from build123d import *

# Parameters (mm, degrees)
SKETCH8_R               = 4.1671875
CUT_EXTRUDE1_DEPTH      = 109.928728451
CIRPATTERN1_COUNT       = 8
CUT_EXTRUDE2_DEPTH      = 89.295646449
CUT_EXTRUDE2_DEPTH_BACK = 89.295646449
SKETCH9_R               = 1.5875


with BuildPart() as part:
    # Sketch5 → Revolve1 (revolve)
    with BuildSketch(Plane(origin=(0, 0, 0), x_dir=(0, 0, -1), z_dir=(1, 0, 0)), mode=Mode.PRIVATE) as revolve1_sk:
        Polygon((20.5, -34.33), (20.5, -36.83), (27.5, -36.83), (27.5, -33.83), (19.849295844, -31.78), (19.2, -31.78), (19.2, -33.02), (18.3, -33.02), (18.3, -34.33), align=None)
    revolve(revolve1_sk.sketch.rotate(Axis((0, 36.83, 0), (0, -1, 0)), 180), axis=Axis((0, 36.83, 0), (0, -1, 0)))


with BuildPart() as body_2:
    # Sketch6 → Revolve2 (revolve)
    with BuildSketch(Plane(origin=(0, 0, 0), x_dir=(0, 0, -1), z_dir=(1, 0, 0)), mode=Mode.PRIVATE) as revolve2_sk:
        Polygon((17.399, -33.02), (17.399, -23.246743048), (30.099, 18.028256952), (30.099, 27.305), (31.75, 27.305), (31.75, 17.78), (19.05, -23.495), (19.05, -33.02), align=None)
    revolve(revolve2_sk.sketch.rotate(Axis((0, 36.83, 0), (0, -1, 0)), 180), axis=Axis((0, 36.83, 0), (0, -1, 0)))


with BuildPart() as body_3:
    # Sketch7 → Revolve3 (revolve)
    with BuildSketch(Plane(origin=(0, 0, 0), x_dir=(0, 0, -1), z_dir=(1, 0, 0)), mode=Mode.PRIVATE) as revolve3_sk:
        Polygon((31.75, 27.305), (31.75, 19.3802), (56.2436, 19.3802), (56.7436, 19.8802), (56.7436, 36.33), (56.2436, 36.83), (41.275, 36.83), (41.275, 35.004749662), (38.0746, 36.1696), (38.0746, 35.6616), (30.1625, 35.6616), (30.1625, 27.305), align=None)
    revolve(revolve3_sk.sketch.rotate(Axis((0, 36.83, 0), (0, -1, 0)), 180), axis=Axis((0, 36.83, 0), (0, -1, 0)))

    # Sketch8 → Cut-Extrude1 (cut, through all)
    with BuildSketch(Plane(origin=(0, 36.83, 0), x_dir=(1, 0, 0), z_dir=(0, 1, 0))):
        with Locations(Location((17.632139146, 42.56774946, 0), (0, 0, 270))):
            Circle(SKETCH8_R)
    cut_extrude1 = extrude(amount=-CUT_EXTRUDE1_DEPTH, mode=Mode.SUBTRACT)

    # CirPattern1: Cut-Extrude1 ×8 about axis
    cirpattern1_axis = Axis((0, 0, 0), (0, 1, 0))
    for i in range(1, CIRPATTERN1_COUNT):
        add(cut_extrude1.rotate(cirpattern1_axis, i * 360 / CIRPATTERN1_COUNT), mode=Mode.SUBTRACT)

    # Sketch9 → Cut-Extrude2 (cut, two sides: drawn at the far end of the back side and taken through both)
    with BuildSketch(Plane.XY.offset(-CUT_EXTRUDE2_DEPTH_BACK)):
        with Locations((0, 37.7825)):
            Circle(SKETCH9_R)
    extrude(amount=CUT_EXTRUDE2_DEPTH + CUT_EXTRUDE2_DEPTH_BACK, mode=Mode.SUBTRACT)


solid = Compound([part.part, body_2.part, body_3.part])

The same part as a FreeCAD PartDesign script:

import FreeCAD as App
import Part
import Sketcher
Q = App.Units.Quantity

doc = App.newDocument("Part")
params = doc.addObject("Spreadsheet::Sheet", "Params")
for row, (alias, value) in enumerate([
    ("revolution_angle", "360 deg"),
    ("sketch2_width", "0.375 in"),
    ("sketch2_height", "0.065 in"),
    ("revolution2_angle", "360 deg"),
    ("sketch3_width", "0.02 in"),
    ("sketch3_width2", "0.312 in"),
    ("sketch3_width3", "0.329 in"),
    ("sketch3_height", "0.0625 in"),
    ("revolution3_angle", "360 deg"),
    ("sketch4_diameter", "0.328125 in"),
    ("sketch5_diameter", "0.125 in"),
], start=1):
    params.set(f"A{row}", alias)
    params.set(f"B{row}", "=" + value)
    params.setAlias(f"B{row}", alias)

body = doc.addObject("PartDesign::Body", "Body")

# Sketch on YZ plane
sketch1 = body.newObject("Sketcher::SketchObject", "Sketch")
sketch1.AttachmentSupport = (doc.getObject("YZ_Plane"), [""])
sketch1.MapMode = "FlatFace"
sketch1.addGeometry([
    Part.LineSegment(App.Vector(-34.3, -20.5, 0), App.Vector(-36.8, -20.5, 0)),  # 0
    Part.LineSegment(App.Vector(-36.8, -20.5, 0), App.Vector(-36.8, -27.5, 0)),  # 1
    Part.LineSegment(App.Vector(-36.8, -27.5, 0), App.Vector(-33.8, -27.5, 0)),  # 2
    Part.LineSegment(App.Vector(-33.8, -27.5, 0), App.Vector(-31.8, -19.8, 0)),  # 3
    Part.LineSegment(App.Vector(-31.8, -19.8, 0), App.Vector(-31.8, -19.2, 0)),  # 4
    Part.LineSegment(App.Vector(-31.8, -19.2, 0), App.Vector(-33, -19.2, 0)),  # 5
    Part.LineSegment(App.Vector(-33, -19.2, 0), App.Vector(-33, -18.3, 0)),  # 6
    Part.LineSegment(App.Vector(-33, -18.3, 0), App.Vector(-34.3, -18.3, 0)),  # 7
    Part.LineSegment(App.Vector(-34.3, -18.3, 0), App.Vector(-34.3, -20.5, 0)),  # 8
], False)
sketch1.addConstraint([
    Sketcher.Constraint("Coincident", 0, 2, 1, 1),
    Sketcher.Constraint("Coincident", 1, 2, 2, 1),
    Sketcher.Constraint("Coincident", 2, 2, 3, 1),
    Sketcher.Constraint("Coincident", 3, 2, 4, 1),
    Sketcher.Constraint("Coincident", 4, 2, 5, 1),
    Sketcher.Constraint("Coincident", 5, 2, 6, 1),
    Sketcher.Constraint("Coincident", 6, 2, 7, 1),
    Sketcher.Constraint("Coincident", 7, 2, 8, 1),
    Sketcher.Constraint("Coincident", 8, 2, 0, 1),
    Sketcher.Constraint("Horizontal", 0),
    Sketcher.Constraint("Vertical", 1),
    Sketcher.Constraint("Horizontal", 2),
    Sketcher.Constraint("Vertical", 4),
    Sketcher.Constraint("Horizontal", 5),
    Sketcher.Constraint("Vertical", 6),
    Sketcher.Constraint("Horizontal", 7),
    Sketcher.Constraint("Vertical", 8),
    Sketcher.Constraint("Angle", 3, Q("75 deg")),
    Sketcher.Constraint("DistanceX", 5, 2, -1, 1, Q("1.3 in")),
    Sketcher.Constraint("DistanceX", 0, 2, -1, 1, Q("1.45 in")),
    Sketcher.Constraint("DistanceX", 0, 2, 0, 1, Q("2.5 mm")),
    Sketcher.Constraint("DistanceX", 2, 1, 2, 2, Q("3 mm")),
    Sketcher.Constraint("DistanceX", 5, 2, 5, 1, Q("1.24 mm")),
    Sketcher.Constraint("DistanceY", 1, 2, 1, 1, Q("7 mm")),
    Sketcher.Constraint("DistanceY", 6, 1, 6, 2, Q("0.9 mm")),
    Sketcher.Constraint("DistanceY", 8, 2, 8, 1, Q("2.2 mm")),
    Sketcher.Constraint("DistanceY", 0, 2, -1, 1, Q("20.5 mm")),
])
revolution = body.newObject("PartDesign::Revolution", "Revolution")
revolution.Profile = sketch1
revolution.ReferenceAxis = (sketch1, ["H_Axis"])
revolution.setExpression("Angle", "Params.revolution_angle")
body2 = doc.addObject("PartDesign::Body", "Body001")

# Sketch on YZ plane
sketch2 = body2.newObject("Sketcher::SketchObject", "Sketch001")
sketch2.AttachmentSupport = (doc.getObject("YZ_Plane001"), [""])
sketch2.MapMode = "FlatFace"
sketch2.addGeometry([
    Part.LineSegment(App.Vector(-23.2, -17.4, 0), App.Vector(-33, -17.4, 0)),  # 0
    Part.LineSegment(App.Vector(-33, -17.4, 0), App.Vector(-33, -19.1, 0)),  # 1
    Part.LineSegment(App.Vector(-33, -19.1, 0), App.Vector(-23.5, -19.1, 0)),  # 2
    Part.LineSegment(App.Vector(-23.5, -19.1, 0), App.Vector(17.8, -31.8, 0)),  # 3
    Part.LineSegment(App.Vector(17.8, -31.8, 0), App.Vector(27.3, -31.8, 0)),  # 4
    Part.LineSegment(App.Vector(27.3, -31.8, 0), App.Vector(27.3, -30.1, 0)),  # 5
    Part.LineSegment(App.Vector(27.3, -30.1, 0), App.Vector(18, -30.1, 0)),  # 6
    Part.LineSegment(App.Vector(18, -30.1, 0), App.Vector(-23.2, -17.4, 0)),  # 7
], False)
sketch2.addConstraint([
    Sketcher.Constraint("Coincident", 0, 2, 1, 1),
    Sketcher.Constraint("Coincident", 1, 2, 2, 1),
    Sketcher.Constraint("Coincident", 2, 2, 3, 1),
    Sketcher.Constraint("Coincident", 3, 2, 4, 1),
    Sketcher.Constraint("Coincident", 4, 2, 5, 1),
    Sketcher.Constraint("Coincident", 5, 2, 6, 1),
    Sketcher.Constraint("Coincident", 6, 2, 7, 1),
    Sketcher.Constraint("Coincident", 7, 2, 0, 1),
    Sketcher.Constraint("Horizontal", 0),
    Sketcher.Constraint("Vertical", 1),
    Sketcher.Constraint("Horizontal", 2),
    Sketcher.Constraint("Horizontal", 4),
    Sketcher.Constraint("Vertical", 5),
    Sketcher.Constraint("Horizontal", 6),
    Sketcher.Constraint("Parallel", 3, 7),
    Sketcher.Constraint("Equal", 2, 4),
    Sketcher.Constraint("Equal", 1, 5),
    Sketcher.Constraint("DistanceX", 1, 2, 3, 2, Q("2 in")),
    Sketcher.Constraint("DistanceX", 0, 2, -1, 1, Q("1.3 in")),
    Sketcher.Constraint("DistanceY", 3, 2, 2, 2, Q("0.5 in")),
    Sketcher.Constraint("DistanceX", 2, 1, 2, 2, Q("0.375 in")),
    Sketcher.Constraint("DistanceY", 1, 2, 1, 1, Q("0.065 in")),
    Sketcher.Constraint("DistanceY", 1, 2, -1, 1, Q("0.75 in")),
    Sketcher.Constraint("DistanceX", 0, 2, 0, 1, Q("9.773257 mm")),
])
sketch2.setExpression("Constraints[20]", "Params.sketch2_width")
sketch2.setExpression("Constraints[21]", "Params.sketch2_height")
revolution2 = body2.newObject("PartDesign::Revolution", "Revolution001")
revolution2.Profile = sketch2
revolution2.ReferenceAxis = (sketch2, ["H_Axis"])
revolution2.setExpression("Angle", "Params.revolution2_angle")
body3 = doc.addObject("PartDesign::Body", "Body002")

# Sketch on YZ plane
sketch3 = body3.newObject("Sketcher::SketchObject", "Sketch002")
sketch3.AttachmentSupport = (doc.getObject("YZ_Plane002"), [""])
sketch3.MapMode = "FlatFace"
sketch3.addGeometry([
    Part.LineSegment(App.Vector(27.3, -31.8, 0), App.Vector(19.4, -31.8, 0)),  # 0
    Part.LineSegment(App.Vector(19.4, -31.8, 0), App.Vector(19.4, -56.2, 0)),  # 1
    Part.LineSegment(App.Vector(19.4, -56.2, 0), App.Vector(19.9, -56.7, 0)),  # 2
    Part.LineSegment(App.Vector(19.9, -56.7, 0), App.Vector(36.3, -56.7, 0)),  # 3
    Part.LineSegment(App.Vector(36.3, -56.7, 0), App.Vector(36.8, -56.2, 0)),  # 4
    Part.LineSegment(App.Vector(36.8, -56.2, 0), App.Vector(36.8, -41.3, 0)),  # 5
    Part.LineSegment(App.Vector(36.8, -41.3, 0), App.Vector(35, -41.3, 0)),  # 6
    Part.LineSegment(App.Vector(35, -41.3, 0), App.Vector(36.2, -38.1, 0)),  # 7
    Part.LineSegment(App.Vector(36.2, -38.1, 0), App.Vector(35.7, -38.1, 0)),  # 8
    Part.LineSegment(App.Vector(35.7, -38.1, 0), App.Vector(35.7, -30.2, 0)),  # 9
    Part.LineSegment(App.Vector(35.7, -30.2, 0), App.Vector(27.3, -30.2, 0)),  # 10
    Part.LineSegment(App.Vector(27.3, -30.2, 0), App.Vector(27.3, -31.8, 0)),  # 11
], False)
sketch3.addConstraint([
    Sketcher.Constraint("Coincident", 0, 2, 1, 1),
    Sketcher.Constraint("Coincident", 1, 2, 2, 1),
    Sketcher.Constraint("Coincident", 2, 2, 3, 1),
    Sketcher.Constraint("Coincident", 3, 2, 4, 1),
    Sketcher.Constraint("Coincident", 4, 2, 5, 1),
    Sketcher.Constraint("Coincident", 5, 2, 6, 1),
    Sketcher.Constraint("Coincident", 6, 2, 7, 1),
    Sketcher.Constraint("Coincident", 7, 2, 8, 1),
    Sketcher.Constraint("Coincident", 8, 2, 9, 1),
    Sketcher.Constraint("Coincident", 9, 2, 10, 1),
    Sketcher.Constraint("Coincident", 10, 2, 11, 1),
    Sketcher.Constraint("Coincident", 11, 2, 0, 1),
    Sketcher.Constraint("Horizontal", 0),
    Sketcher.Constraint("Vertical", 1),
    Sketcher.Constraint("Horizontal", 3),
    Sketcher.Constraint("Vertical", 5),
    Sketcher.Constraint("Horizontal", 6),
    Sketcher.Constraint("Horizontal", 8),
    Sketcher.Constraint("Vertical", 9),
    Sketcher.Constraint("Horizontal", 10),
    Sketcher.Constraint("Vertical", 11),
    Sketcher.Constraint("Perpendicular", 2, 4),
    Sketcher.Constraint("Horizontal", 1, 2, 4, 2),
    Sketcher.Constraint("Equal", 2, 4),
    Sketcher.Constraint("Angle", 7, Q("70 deg")),
    Sketcher.Constraint("DistanceX", 8, 2, 8, 1, Q("0.02 in")),
    Sketcher.Constraint("DistanceX", 0, 2, 0, 1, Q("0.312 in")),
    Sketcher.Constraint("DistanceX", 10, 2, 10, 1, Q("0.329 in")),
    Sketcher.Constraint("DistanceY", 11, 2, 11, 1, Q("0.0625 in")),
    Sketcher.Constraint("DistanceY", 0, 2, -1, 1, Q("1.25 in")),
    Sketcher.Constraint("DistanceX", -1, 1, 4, 2, Q("1.45 in")),
    Sketcher.Constraint("DistanceY", 9, 1, 9, 2, Q("0.3115 in")),
    Sketcher.Constraint("DistanceX", -1, 1, 0, 2, Q("0.763 in")),
    Sketcher.Constraint("DistanceY", 2, 2, -1, 1, Q("2.234 in")),
    Sketcher.Constraint("DistanceY", 5, 2, -1, 1, Q("1.625 in")),
    Sketcher.Constraint("DistanceX", 3, 1, 3, 2, Q("16.4498 mm")),
])
sketch3.setExpression("Constraints[25]", "Params.sketch3_width")
sketch3.setExpression("Constraints[26]", "Params.sketch3_width2")
sketch3.setExpression("Constraints[27]", "Params.sketch3_width3")
sketch3.setExpression("Constraints[28]", "Params.sketch3_height")
revolution3 = body3.newObject("PartDesign::Revolution", "Revolution002")
revolution3.Profile = sketch3
revolution3.ReferenceAxis = (sketch3, ["H_Axis"])
revolution3.setExpression("Angle", "Params.revolution3_angle")

# Sketch on XZ plane
sketch4 = body3.newObject("Sketcher::SketchObject", "Sketch003")
sketch4.AttachmentSupport = (doc.getObject("XZ_Plane002"), [""])
sketch4.MapMode = "FlatFace"
sketch4.AttachmentOffset = App.Placement(App.Vector(0, 0, -1.45 * 25.4), App.Rotation())
sketch4.addGeometry(Part.Circle(App.Vector(17.6, -42.6, 0), App.Vector(0, 0, 1), 4.2), False)
sketch4.addConstraint([
    Sketcher.Constraint("Diameter", 0, Q("0.328125 in")),
    Sketcher.Constraint("DistanceX", -1, 1, 0, 3, Q("17.632139 mm")),
    Sketcher.Constraint("DistanceY", 0, 3, -1, 1, Q("42.567749 mm")),
])
sketch4.setExpression("Constraints[0]", "Params.sketch4_diameter")
pocket1 = body3.newObject("PartDesign::Pocket", "Pocket")
pocket1.Profile = sketch4
pocket1.Type = "ThroughAll"
pocket1.Reversed = True
doc.recompute()

polarpattern = body3.newObject("PartDesign::PolarPattern", "PolarPattern")
polarpattern.Originals = [pocket1]
polarpattern.Axis = (doc.getObject("Y_Axis002"), [""])
polarpattern.Angle = 360
polarpattern.Occurrences = 8
body3.Tip = polarpattern

# Sketch on XY plane
sketch5 = body3.newObject("Sketcher::SketchObject", "Sketch004")
sketch5.AttachmentSupport = (doc.getObject("XY_Plane002"), [""])
sketch5.MapMode = "FlatFace"
sketch5.addGeometry(Part.Circle(App.Vector(0, 37.8, 0), App.Vector(0, 0, 1), 1.6), False)
sketch5.addConstraint([
    Sketcher.Constraint("PointOnObject", 0, 3, -2),
    Sketcher.Constraint("Diameter", 0, Q("0.125 in")),
    Sketcher.Constraint("DistanceY", -1, 1, 0, 3, Q("1.4875 in")),
])
sketch5.setExpression("Constraints[1]", "Params.sketch5_diameter")
pocket2 = body3.newObject("PartDesign::Pocket", "Pocket001")
pocket2.Profile = sketch5
pocket2.Type = "ThroughAll"
pocket2.Midplane = True

doc.recompute()
